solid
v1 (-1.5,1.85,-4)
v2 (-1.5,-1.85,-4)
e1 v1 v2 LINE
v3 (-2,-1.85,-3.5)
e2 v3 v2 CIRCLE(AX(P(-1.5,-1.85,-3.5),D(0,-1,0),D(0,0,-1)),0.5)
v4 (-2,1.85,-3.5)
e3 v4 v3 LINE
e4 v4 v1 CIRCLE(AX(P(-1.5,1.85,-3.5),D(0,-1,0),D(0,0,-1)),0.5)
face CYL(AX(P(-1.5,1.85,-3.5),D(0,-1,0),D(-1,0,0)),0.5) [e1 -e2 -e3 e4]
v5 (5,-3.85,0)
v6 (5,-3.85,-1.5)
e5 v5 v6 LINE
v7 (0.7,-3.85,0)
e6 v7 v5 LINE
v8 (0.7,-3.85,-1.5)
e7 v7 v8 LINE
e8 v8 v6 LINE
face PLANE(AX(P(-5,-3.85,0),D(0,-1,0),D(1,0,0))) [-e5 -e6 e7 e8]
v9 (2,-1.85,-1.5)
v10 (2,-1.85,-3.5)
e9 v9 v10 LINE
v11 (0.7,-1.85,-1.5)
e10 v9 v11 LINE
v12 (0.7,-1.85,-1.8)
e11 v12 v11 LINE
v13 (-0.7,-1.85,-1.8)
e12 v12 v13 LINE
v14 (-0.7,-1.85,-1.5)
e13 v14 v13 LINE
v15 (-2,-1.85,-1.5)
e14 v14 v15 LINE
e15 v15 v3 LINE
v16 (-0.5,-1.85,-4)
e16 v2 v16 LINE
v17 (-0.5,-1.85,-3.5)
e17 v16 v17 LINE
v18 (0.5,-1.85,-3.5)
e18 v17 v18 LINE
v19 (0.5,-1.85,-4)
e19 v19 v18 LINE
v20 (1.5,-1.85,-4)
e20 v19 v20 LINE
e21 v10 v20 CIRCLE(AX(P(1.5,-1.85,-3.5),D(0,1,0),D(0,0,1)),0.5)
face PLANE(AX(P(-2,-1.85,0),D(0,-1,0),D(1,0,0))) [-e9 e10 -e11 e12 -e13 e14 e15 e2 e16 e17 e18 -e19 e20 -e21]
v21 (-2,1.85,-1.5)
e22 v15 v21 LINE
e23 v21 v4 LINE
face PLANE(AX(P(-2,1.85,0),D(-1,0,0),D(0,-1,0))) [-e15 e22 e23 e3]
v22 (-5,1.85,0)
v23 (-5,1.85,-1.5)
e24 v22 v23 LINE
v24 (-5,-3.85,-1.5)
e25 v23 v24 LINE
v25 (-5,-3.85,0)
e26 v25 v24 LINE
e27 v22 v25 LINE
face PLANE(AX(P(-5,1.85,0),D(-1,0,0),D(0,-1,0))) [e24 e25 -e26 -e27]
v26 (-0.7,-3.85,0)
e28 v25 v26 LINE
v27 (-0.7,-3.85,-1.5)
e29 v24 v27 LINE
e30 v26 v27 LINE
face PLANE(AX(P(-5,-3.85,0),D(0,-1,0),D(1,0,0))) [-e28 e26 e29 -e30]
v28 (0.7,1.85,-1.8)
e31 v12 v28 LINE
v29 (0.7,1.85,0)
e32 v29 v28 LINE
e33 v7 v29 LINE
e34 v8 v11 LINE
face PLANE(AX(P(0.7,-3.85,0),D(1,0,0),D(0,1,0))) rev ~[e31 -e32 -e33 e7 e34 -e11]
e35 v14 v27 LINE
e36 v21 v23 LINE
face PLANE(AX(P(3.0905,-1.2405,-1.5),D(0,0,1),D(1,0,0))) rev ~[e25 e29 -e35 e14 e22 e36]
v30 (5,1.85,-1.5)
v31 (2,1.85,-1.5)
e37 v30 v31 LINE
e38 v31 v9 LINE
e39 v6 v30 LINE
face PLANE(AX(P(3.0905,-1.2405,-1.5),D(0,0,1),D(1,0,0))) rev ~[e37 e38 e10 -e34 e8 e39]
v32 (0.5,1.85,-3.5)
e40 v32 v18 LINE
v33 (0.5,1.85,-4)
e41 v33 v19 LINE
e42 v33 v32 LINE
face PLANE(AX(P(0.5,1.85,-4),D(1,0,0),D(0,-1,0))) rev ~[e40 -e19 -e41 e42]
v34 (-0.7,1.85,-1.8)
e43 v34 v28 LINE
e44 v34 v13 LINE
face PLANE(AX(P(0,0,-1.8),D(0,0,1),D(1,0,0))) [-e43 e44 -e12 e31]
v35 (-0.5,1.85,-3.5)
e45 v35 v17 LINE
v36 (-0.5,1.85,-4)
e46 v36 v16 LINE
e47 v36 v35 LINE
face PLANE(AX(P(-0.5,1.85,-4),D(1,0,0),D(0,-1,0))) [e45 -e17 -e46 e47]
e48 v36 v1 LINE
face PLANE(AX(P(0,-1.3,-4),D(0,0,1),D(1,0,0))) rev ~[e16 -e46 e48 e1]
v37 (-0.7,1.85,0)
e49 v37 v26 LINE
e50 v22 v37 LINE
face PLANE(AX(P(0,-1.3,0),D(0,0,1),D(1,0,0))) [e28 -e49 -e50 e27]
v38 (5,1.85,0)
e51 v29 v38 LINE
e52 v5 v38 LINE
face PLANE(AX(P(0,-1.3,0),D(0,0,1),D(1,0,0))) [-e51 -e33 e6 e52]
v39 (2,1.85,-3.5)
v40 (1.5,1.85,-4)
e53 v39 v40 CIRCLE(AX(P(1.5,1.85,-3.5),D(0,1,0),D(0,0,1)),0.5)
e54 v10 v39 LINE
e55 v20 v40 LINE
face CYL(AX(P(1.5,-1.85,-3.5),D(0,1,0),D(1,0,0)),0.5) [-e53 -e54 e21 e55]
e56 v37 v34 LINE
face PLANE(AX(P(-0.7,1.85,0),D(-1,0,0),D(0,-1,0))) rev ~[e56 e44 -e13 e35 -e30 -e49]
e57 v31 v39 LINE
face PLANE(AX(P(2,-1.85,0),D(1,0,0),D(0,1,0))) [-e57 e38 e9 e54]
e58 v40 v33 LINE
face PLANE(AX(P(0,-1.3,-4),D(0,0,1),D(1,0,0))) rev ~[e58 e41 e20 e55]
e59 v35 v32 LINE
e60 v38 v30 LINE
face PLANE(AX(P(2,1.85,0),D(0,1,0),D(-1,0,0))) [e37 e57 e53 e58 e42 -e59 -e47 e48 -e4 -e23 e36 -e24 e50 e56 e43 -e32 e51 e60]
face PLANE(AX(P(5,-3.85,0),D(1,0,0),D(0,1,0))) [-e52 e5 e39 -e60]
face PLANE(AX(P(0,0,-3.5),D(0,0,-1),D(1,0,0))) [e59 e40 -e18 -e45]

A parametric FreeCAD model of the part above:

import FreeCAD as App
import Part
import Sketcher
from FreeCAD import Vector
Q = App.Units.Quantity


def edges_at(feature, points):
    """Names of the edges that pass closest to the given points."""
    edges = feature.Shape.Edges
    near = lambda p: min(range(len(edges)), key=lambda i: edges[i].distToShape(Part.Vertex(*p))[0])
    return sorted({f"Edge{near(p) + 1}" for p in points})


def add_polygon(sketch, points):
    """Adds a closed chain of lines whose ends are joined by coincident constraints."""
    first, n = sketch.GeometryCount, len(points)
    for a, b in zip(points, points[1:] + points[:1]):
        sketch.addGeometry(Part.LineSegment(App.Vector(*a, 0), App.Vector(*b, 0)), False)
    for i in range(n):
        sketch.addConstraint(Sketcher.Constraint("Coincident", first + i, 2, first + (i + 1) % n, 1))

doc = App.newDocument("Part")
params = doc.addObject("Spreadsheet::Sheet", "Params")
for row, (alias, value) in enumerate([
    ("sketch1_width", "3 mm"),
    ("sketch1_width2", "4 mm"),
    ("sketch1_height", "3.7 mm"),
    ("sketch1_height2", "5.7 mm"),
    ("pad1_length", "1.5 mm"),
    ("sketch2_width", "4 mm"),
    ("sketch2_height", "3.7 mm"),
    ("pad2_length", "4 mm"),
    ("sketch3_width", "1.4 mm"),
    ("sketch3_height", "5.7 mm"),
    ("pocket1_length", "1.8 mm"),
    ("sketch4_width", "1 mm"),
    ("sketch4_height", "3.7 mm"),
    ("pocket2_length", "0.5 mm"),
    ("fillet_radius", "0.5 mm"),
], start=1):
    params.set(f"A{row}", alias)
    params.set(f"B{row}", "=" + value)
    params.setAlias(f"B{row}", alias)

body = doc.addObject("PartDesign::Body", "Body")

# Sketch on XY plane
sketch1 = body.newObject("Sketcher::SketchObject", "Sketch")
sketch1.AttachmentSupport = (doc.getObject("XY_Plane"), [""])
sketch1.MapMode = "FlatFace"
add_polygon(sketch1, [(5, 1.85), (2, 1.85), (2, -1.85), (-2, -1.85), (-2, 1.85), (-5, 1.85), (-5, -3.85), (5, -3.85)])  # lines 0-7
sketch1.addConstraint([
    Sketcher.Constraint("Horizontal", 0),
    Sketcher.Constraint("Vertical", 1),
    Sketcher.Constraint("Horizontal", 2),
    Sketcher.Constraint("Vertical", 3),
    Sketcher.Constraint("Horizontal", 4),
    Sketcher.Constraint("Vertical", 5),
    Sketcher.Constraint("Horizontal", 6),
    Sketcher.Constraint("Vertical", 7),
    Sketcher.Constraint("Symmetric", 0, 2, 2, 2, -1, 1),
    Sketcher.Constraint("Symmetric", 4, 2, 7, 2, -2),
    Sketcher.Constraint("DistanceX", 0, 2, 0, 1, Q("3 mm")),
    Sketcher.Constraint("DistanceX", 2, 2, 2, 1, Q("4 mm")),
    Sketcher.Constraint("DistanceY", 1, 2, 1, 1, Q("3.7 mm")),
    Sketcher.Constraint("DistanceY", 5, 2, 5, 1, Q("5.7 mm")),
])
sketch1.setExpression("Constraints[18]", "Params.sketch1_width")
sketch1.setExpression("Constraints[19]", "Params.sketch1_width2")
sketch1.setExpression("Constraints[20]", "Params.sketch1_height")
sketch1.setExpression("Constraints[21]", "Params.sketch1_height2")
pad1 = body.newObject("PartDesign::Pad", "Pad")
pad1.Profile = sketch1
pad1.setExpression("Length", "Params.pad1_length")
pad1.Reversed = True

# Sketch on XY plane
sketch2 = body.newObject("Sketcher::SketchObject", "Sketch001")
sketch2.AttachmentSupport = (doc.getObject("XY_Plane"), [""])
sketch2.MapMode = "FlatFace"
add_polygon(sketch2, [(-2, 1.85), (-2, -1.85), (2, -1.85), (2, 1.85)])  # lines 0-3
sketch2.addConstraint([
    Sketcher.Constraint("Vertical", 0),
    Sketcher.Constraint("Horizontal", 1),
    Sketcher.Constraint("Vertical", 2),
    Sketcher.Constraint("Horizontal", 3),
    Sketcher.Constraint("Symmetric", 0, 2, 2, 2, -1, 1),
    Sketcher.Constraint("DistanceX", 1, 1, 1, 2, Q("4 mm")),
    Sketcher.Constraint("DistanceY", 0, 2, 0, 1, Q("3.7 mm")),
])
sketch2.setExpression("Constraints[9]", "Params.sketch2_width")
sketch2.setExpression("Constraints[10]", "Params.sketch2_height")
pad2 = body.newObject("PartDesign::Pad", "Pad001")
pad2.Profile = sketch2
pad2.setExpression("Length", "Params.pad2_length")
pad2.Reversed = True

# Sketch on XY plane
sketch3 = body.newObject("Sketcher::SketchObject", "Sketch002")
sketch3.AttachmentSupport = (doc.getObject("XY_Plane"), [""])
sketch3.MapMode = "FlatFace"
add_polygon(sketch3, [(0.7, 1.85), (-0.7, 1.85), (-0.7, -3.85), (0.7, -3.85)])  # lines 0-3
sketch3.addConstraint([
    Sketcher.Constraint("Horizontal", 0),
    Sketcher.Constraint("Vertical", 1),
    Sketcher.Constraint("Horizontal", 2),
    Sketcher.Constraint("Vertical", 3),
    Sketcher.Constraint("DistanceX", 0, 2, 0, 1, Q("1.4 mm")),
    Sketcher.Constraint("DistanceY", 1, 2, 1, 1, Q("5.7 mm")),
    Sketcher.Constraint("DistanceX", 0, 2, -1, 1, Q("0.7 mm")),
    Sketcher.Constraint("DistanceY", -1, 1, 0, 2, Q("1.85 mm")),
])
sketch3.setExpression("Constraints[8]", "Params.sketch3_width")
sketch3.setExpression("Constraints[9]", "Params.sketch3_height")
pocket1 = body.newObject("PartDesign::Pocket", "Pocket")
pocket1.Profile = sketch3
pocket1.setExpression("Length", "Params.pocket1_length")

# Sketch on XY plane
sketch4 = body.newObject("Sketcher::SketchObject", "Sketch003")
sketch4.AttachmentSupport = (doc.getObject("XY_Plane"), [""])
sketch4.MapMode = "FlatFace"
sketch4.AttachmentOffset = App.Placement(Vector(0, 0, -4), App.Rotation())
add_polygon(sketch4, [(-0.5, -1.85), (-0.5, 1.85), (0.5, 1.85), (0.5, -1.85)])  # lines 0-3
sketch4.addConstraint([
    Sketcher.Constraint("Vertical", 0),
    Sketcher.Constraint("Horizontal", 1),
    Sketcher.Constraint("Vertical", 2),
    Sketcher.Constraint("Horizontal", 3),
    Sketcher.Constraint("Symmetric", 0, 2, 2, 2, -1, 1),
    Sketcher.Constraint("DistanceX", 1, 1, 1, 2, Q("1 mm")),
    Sketcher.Constraint("DistanceY", 0, 1, 0, 2, Q("3.7 mm")),
])
sketch4.setExpression("Constraints[9]", "Params.sketch4_width")
sketch4.setExpression("Constraints[10]", "Params.sketch4_height")
pocket2 = body.newObject("PartDesign::Pocket", "Pocket001")
pocket2.Profile = sketch4
pocket2.setExpression("Length", "Params.pocket2_length")
pocket2.Reversed = True
doc.recompute()

fillet = body.newObject("PartDesign::Fillet", "Fillet")
fillet.Base = (pocket2, edges_at(pocket2, [(-2, 0, -4), (2, 0, -4)]))
fillet.setExpression("Radius", "Params.fillet_radius")

doc.recompute()
